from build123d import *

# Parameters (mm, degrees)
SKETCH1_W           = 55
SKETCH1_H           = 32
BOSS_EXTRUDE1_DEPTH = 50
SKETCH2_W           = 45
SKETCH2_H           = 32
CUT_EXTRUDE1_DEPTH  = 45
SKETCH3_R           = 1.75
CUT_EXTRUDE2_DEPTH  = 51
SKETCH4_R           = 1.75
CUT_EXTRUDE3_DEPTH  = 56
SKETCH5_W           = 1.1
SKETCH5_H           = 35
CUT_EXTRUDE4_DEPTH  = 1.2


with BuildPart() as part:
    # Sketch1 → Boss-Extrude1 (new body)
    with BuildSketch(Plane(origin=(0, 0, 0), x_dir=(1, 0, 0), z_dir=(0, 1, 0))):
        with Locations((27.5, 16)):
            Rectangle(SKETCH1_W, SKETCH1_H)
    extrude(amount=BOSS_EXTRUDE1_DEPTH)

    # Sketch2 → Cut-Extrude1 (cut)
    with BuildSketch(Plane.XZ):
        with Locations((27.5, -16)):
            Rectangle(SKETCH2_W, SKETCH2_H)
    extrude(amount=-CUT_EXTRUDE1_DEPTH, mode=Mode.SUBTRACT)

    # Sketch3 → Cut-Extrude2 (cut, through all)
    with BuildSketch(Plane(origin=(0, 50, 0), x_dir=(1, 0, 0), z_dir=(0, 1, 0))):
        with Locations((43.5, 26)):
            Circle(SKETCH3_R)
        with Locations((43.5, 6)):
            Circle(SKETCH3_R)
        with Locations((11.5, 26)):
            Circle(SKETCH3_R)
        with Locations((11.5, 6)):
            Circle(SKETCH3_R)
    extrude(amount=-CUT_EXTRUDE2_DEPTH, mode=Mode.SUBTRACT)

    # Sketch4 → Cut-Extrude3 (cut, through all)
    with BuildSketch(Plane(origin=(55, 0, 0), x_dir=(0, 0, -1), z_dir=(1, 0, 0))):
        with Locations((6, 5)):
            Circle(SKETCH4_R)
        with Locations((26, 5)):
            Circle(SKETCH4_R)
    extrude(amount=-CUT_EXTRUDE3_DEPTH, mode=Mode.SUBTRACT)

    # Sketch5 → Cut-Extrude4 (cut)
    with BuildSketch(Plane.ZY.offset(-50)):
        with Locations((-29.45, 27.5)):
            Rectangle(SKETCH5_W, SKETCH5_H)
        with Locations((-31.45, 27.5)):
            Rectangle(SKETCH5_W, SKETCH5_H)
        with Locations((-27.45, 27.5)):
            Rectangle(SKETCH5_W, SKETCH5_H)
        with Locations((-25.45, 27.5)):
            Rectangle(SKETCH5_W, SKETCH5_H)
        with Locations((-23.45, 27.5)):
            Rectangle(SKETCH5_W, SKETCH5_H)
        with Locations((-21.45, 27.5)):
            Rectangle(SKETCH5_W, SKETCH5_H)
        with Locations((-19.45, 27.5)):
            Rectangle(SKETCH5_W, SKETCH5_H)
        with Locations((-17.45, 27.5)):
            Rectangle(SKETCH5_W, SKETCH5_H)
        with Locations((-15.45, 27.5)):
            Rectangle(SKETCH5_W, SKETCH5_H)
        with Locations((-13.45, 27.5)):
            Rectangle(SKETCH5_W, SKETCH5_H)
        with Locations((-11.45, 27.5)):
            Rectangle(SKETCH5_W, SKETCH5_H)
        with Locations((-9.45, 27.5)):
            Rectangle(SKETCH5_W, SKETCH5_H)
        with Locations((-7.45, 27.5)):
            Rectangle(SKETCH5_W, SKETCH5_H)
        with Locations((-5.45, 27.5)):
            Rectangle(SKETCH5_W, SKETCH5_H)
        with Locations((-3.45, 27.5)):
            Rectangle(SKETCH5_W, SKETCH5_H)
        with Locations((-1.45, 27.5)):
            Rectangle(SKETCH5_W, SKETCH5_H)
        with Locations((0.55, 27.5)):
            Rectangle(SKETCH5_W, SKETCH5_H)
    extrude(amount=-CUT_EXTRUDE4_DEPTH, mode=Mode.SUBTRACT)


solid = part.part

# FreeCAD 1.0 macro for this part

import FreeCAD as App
import Part
import Sketcher

doc = App.newDocument("Part")
body = doc.addObject("PartDesign::Body", "Body")

sketch1 = body.newObject("Sketcher::SketchObject", "Sketch")
sketch1.AttachmentSupport = (doc.getObject("XZ_Plane"), [""])
sketch1.MapMode = "FlatFace"
sketch1.addGeometry([
    Part.LineSegment(App.Vector(0, -32, 0), App.Vector(0, 0, 0)),
    Part.LineSegment(App.Vector(0, 0, 0), App.Vector(55, 0, 0)),
    Part.LineSegment(App.Vector(55, 0, 0), App.Vector(55, -32, 0)),
    Part.LineSegment(App.Vector(55, -32, 0), App.Vector(0, -32, 0)),
], False)
sketch1.addConstraint([
    Sketcher.Constraint("Coincident", 0, 2, 1, 1),
    Sketcher.Constraint("Coincident", 1, 2, 2, 1),
    Sketcher.Constraint("Coincident", 2, 2, 3, 1),
    Sketcher.Constraint("Coincident", 3, 2, 0, 1),
    Sketcher.Constraint("Vertical", 0),
    Sketcher.Constraint("Horizontal", 1),
    Sketcher.Constraint("Vertical", 2),
    Sketcher.Constraint("Horizontal", 3),
    Sketcher.Constraint("Coincident", 0, 2, -1, 1),
    Sketcher.Constraint("DistanceX", 1, 1, 1, 2, 55.0),
    Sketcher.Constraint("DistanceY", 0, 1, 0, 2, 32.0),
])
pad1 = body.newObject("PartDesign::Pad", "Pad")
pad1.Profile = sketch1
pad1.Length = 50
pad1.Reversed = True

sketch2 = body.newObject("Sketcher::SketchObject", "Sketch001")
sketch2.AttachmentSupport = (doc.getObject("XZ_Plane"), [""])
sketch2.MapMode = "FlatFace"
sketch2.addGeometry([
    Part.LineSegment(App.Vector(5, 0, 0), App.Vector(5, -32, 0)),
    Part.LineSegment(App.Vector(5, -32, 0), App.Vector(50, -32, 0)),
    Part.LineSegment(App.Vector(50, -32, 0), App.Vector(50, 0, 0)),
    Part.LineSegment(App.Vector(50, 0, 0), App.Vector(5, 0, 0)),
], False)
sketch2.addConstraint([
    Sketcher.Constraint("Coincident", 0, 2, 1, 1),
    Sketcher.Constraint("Coincident", 1, 2, 2, 1),
    Sketcher.Constraint("Coincident", 2, 2, 3, 1),
    Sketcher.Constraint("Coincident", 3, 2, 0, 1),
    Sketcher.Constraint("Vertical", 0),
    Sketcher.Constraint("Horizontal", 1),
    Sketcher.Constraint("Vertical", 2),
    Sketcher.Constraint("Horizontal", 3),
    Sketcher.Constraint("PointOnObject", 2, 2, -1),
    Sketcher.Constraint("DistanceX", 1, 1, 1, 2, 45.0),
    Sketcher.Constraint("DistanceY", 0, 2, 0, 1, 32.0),
    Sketcher.Constraint("DistanceX", -1, 1, 0, 2, 5.0),
])
pocket1 = body.newObject("PartDesign::Pocket", "Pocket")
pocket1.Profile = sketch2
pocket1.Length = 45

sketch3 = body.newObject("Sketcher::SketchObject", "Sketch002")
sketch3.AttachmentSupport = (doc.getObject("XZ_Plane"), [""])
sketch3.MapMode = "FlatFace"
sketch3.AttachmentOffset = App.Placement(App.Vector(0, 0, -50), App.Rotation())
sketch3.addGeometry([
    Part.Circle(App.Vector(43.5, -26, 0), App.Vector(0, 0, 1), 1.8),
    Part.Circle(App.Vector(43.5, -6, 0), App.Vector(0, 0, 1), 1.8),
    Part.Circle(App.Vector(11.5, -26, 0), App.Vector(0, 0, 1), 1.8),
    Part.Circle(App.Vector(11.5, -6, 0), App.Vector(0, 0, 1), 1.8),
], False)
sketch3.addConstraint([
    Sketcher.Constraint("Equal", 0, 1),
    Sketcher.Constraint("Equal", 1, 2),
    Sketcher.Constraint("Equal", 2, 3),
    Sketcher.Constraint("Horizontal", 0, 3, 2, 3),
    Sketcher.Constraint("Horizontal", 1, 3, 3, 3),
    Sketcher.Constraint("Vertical", 0, 3, 1, 3),
    Sketcher.Constraint("Vertical", 2, 3, 3, 3),
    Sketcher.Constraint("Diameter", 0, 3.5),
    Sketcher.Constraint("DistanceY", 0, 3, -1, 1, 26.0),
    Sketcher.Constraint("DistanceY", 1, 3, -1, 1, 6.0),
    Sketcher.Constraint("DistanceX", 2, 3, 0, 3, 32.0),
    Sketcher.Constraint("DistanceX", -1, 1, 0, 3, 43.5),
])
pocket2 = body.newObject("PartDesign::Pocket", "Pocket001")
pocket2.Profile = sketch3
pocket2.Type = "ThroughAll"
pocket2.Reversed = True

sketch4 = body.newObject("Sketcher::SketchObject", "Sketch003")
sketch4.AttachmentSupport = (doc.getObject("YZ_Plane"), [""])
sketch4.MapMode = "FlatFace"
sketch4.AttachmentOffset = App.Placement(App.Vector(0, 0, 55), App.Rotation())
sketch4.addGeometry([
    Part.Circle(App.Vector(5, -6, 0), App.Vector(0, 0, 1), 1.8),
    Part.Circle(App.Vector(5, -26, 0), App.Vector(0, 0, 1), 1.8),
], False)
sketch4.addConstraint([
    Sketcher.Constraint("Equal", 0, 1),
    Sketcher.Constraint("Vertical", 0, 3, 1, 3),
    Sketcher.Constraint("Diameter", 0, 3.5),
    Sketcher.Constraint("DistanceX", -1, 1, 0, 3, 5.0),
    Sketcher.Constraint("DistanceY", 0, 3, -1, 1, 6.0),
    Sketcher.Constraint("DistanceY", 1, 3, -1, 1, 26.0),
])
pocket3 = body.newObject("PartDesign::Pocket", "Pocket002")
pocket3.Profile = sketch4
pocket3.Type = "ThroughAll"

sketch5 = body.newObject("Sketcher::SketchObject", "Sketch004")
sketch5.AttachmentSupport = (doc.getObject("YZ_Plane"), [""])
sketch5.MapMode = "FlatFace"
sketch5.AttachmentOffset = App.Placement(App.Vector(0, 0, 50), App.Rotation())
sketch5.addGeometry([
    Part.LineSegment(App.Vector(45, -30, 0), App.Vector(10, -30, 0)),
    Part.LineSegment(App.Vector(10, -30, 0), App.Vector(10, -28.9, 0)),
    Part.LineSegment(App.Vector(10, -28.9, 0), App.Vector(45, -28.9, 0)),
    Part.LineSegment(App.Vector(45, -28.9, 0), App.Vector(45, -30, 0)),
    Part.LineSegment(App.Vector(45, -32, 0), App.Vector(10, -32, 0)),
    Part.LineSegment(App.Vector(10, -32, 0), App.Vector(10, -30.9, 0)),
    Part.LineSegment(App.Vector(10, -30.9, 0), App.Vector(45, -30.9, 0)),
    Part.LineSegment(App.Vector(45, -30.9, 0), App.Vector(45, -32, 0)),
    Part.LineSegment(App.Vector(45, -28, 0), App.Vector(10, -28, 0)),
    Part.LineSegment(App.Vector(10, -28, 0), App.Vector(10, -26.9, 0)),
    Part.LineSegment(App.Vector(10, -26.9, 0), App.Vector(45, -26.9, 0)),
    Part.LineSegment(App.Vector(45, -26.9, 0), App.Vector(45, -28, 0)),
    Part.LineSegment(App.Vector(45, -26, 0), App.Vector(10, -26, 0)),
    Part.LineSegment(App.Vector(10, -26, 0), App.Vector(10, -24.9, 0)),
    Part.LineSegment(App.Vector(10, -24.9, 0), App.Vector(45, -24.9, 0)),
    Part.LineSegment(App.Vector(45, -24.9, 0), App.Vector(45, -26, 0)),
    Part.LineSegment(App.Vector(45, -24, 0), App.Vector(10, -24, 0)),
    Part.LineSegment(App.Vector(10, -24, 0), App.Vector(10, -22.9, 0)),
    Part.LineSegment(App.Vector(10, -22.9, 0), App.Vector(45, -22.9, 0)),
    Part.LineSegment(App.Vector(45, -22.9, 0), App.Vector(45, -24, 0)),
    Part.LineSegment(App.Vector(45, -22, 0), App.Vector(10, -22, 0)),
    Part.LineSegment(App.Vector(10, -22, 0), App.Vector(10, -20.9, 0)),
    Part.LineSegment(App.Vector(10, -20.9, 0), App.Vector(45, -20.9, 0)),
    Part.LineSegment(App.Vector(45, -20.9, 0), App.Vector(45, -22, 0)),
    Part.LineSegment(App.Vector(45, -20, 0), App.Vector(10, -20, 0)),
    Part.LineSegment(App.Vector(10, -20, 0), App.Vector(10, -18.9, 0)),
    Part.LineSegment(App.Vector(10, -18.9, 0), App.Vector(45, -18.9, 0)),
    Part.LineSegment(App.Vector(45, -18.9, 0), App.Vector(45, -20, 0)),
    Part.LineSegment(App.Vector(45, -18, 0), App.Vector(10, -18, 0)),
    Part.LineSegment(App.Vector(10, -18, 0), App.Vector(10, -16.9, 0)),
    Part.LineSegment(App.Vector(10, -16.9, 0), App.Vector(45, -16.9, 0)),
    Part.LineSegment(App.Vector(45, -16.9, 0), App.Vector(45, -18, 0)),
    Part.LineSegment(App.Vector(45, -16, 0), App.Vector(10, -16, 0)),
    Part.LineSegment(App.Vector(10, -16, 0), App.Vector(10, -14.9, 0)),
    Part.LineSegment(App.Vector(10, -14.9, 0), App.Vector(45, -14.9, 0)),
    Part.LineSegment(App.Vector(45, -14.9, 0), App.Vector(45, -16, 0)),
    Part.LineSegment(App.Vector(45, -14, 0), App.Vector(10, -14, 0)),
    Part.LineSegment(App.Vector(10, -14, 0), App.Vector(10, -12.9, 0)),
    Part.LineSegment(App.Vector(10, -12.9, 0), App.Vector(45, -12.9, 0)),
    Part.LineSegment(App.Vector(45, -12.9, 0), App.Vector(45, -14, 0)),
    Part.LineSegment(App.Vector(45, -12, 0), App.Vector(10, -12, 0)),
    Part.LineSegment(App.Vector(10, -12, 0), App.Vector(10, -10.9, 0)),
    Part.LineSegment(App.Vector(10, -10.9, 0), App.Vector(45, -10.9, 0)),
    Part.LineSegment(App.Vector(45, -10.9, 0), App.Vector(45, -12, 0)),
    Part.LineSegment(App.Vector(45, -10, 0), App.Vector(10, -10, 0)),
    Part.LineSegment(App.Vector(10, -10, 0), App.Vector(10, -8.9, 0)),
    Part.LineSegment(App.Vector(10, -8.9, 0), App.Vector(45, -8.9, 0)),
    Part.LineSegment(App.Vector(45, -8.9, 0), App.Vector(45, -10, 0)),
    Part.LineSegment(App.Vector(45, -8, 0), App.Vector(10, -8, 0)),
    Part.LineSegment(App.Vector(10, -8, 0), App.Vector(10, -6.9, 0)),
    Part.LineSegment(App.Vector(10, -6.9, 0), App.Vector(45, -6.9, 0)),
    Part.LineSegment(App.Vector(45, -6.9, 0), App.Vector(45, -8, 0)),
    Part.LineSegment(App.Vector(45, -6, 0), App.Vector(10, -6, 0)),
    Part.LineSegment(App.Vector(10, -6, 0), App.Vector(10, -4.9, 0)),
    Part.LineSegment(App.Vector(10, -4.9, 0), App.Vector(45, -4.9, 0)),
    Part.LineSegment(App.Vector(45, -4.9, 0), App.Vector(45, -6, 0)),
    Part.LineSegment(App.Vector(45, -4, 0), App.Vector(10, -4, 0)),
    Part.LineSegment(App.Vector(10, -4, 0), App.Vector(10, -2.9, 0)),
    Part.LineSegment(App.Vector(10, -2.9, 0), App.Vector(45, -2.9, 0)),
    Part.LineSegment(App.Vector(45, -2.9, 0), App.Vector(45, -4, 0)),
    Part.LineSegment(App.Vector(45, -2, 0), App.Vector(10, -2, 0)),
    Part.LineSegment(App.Vector(10, -2, 0), App.Vector(10, -0.9, 0)),
    Part.LineSegment(App.Vector(10, -0.9, 0), App.Vector(45, -0.9, 0)),
    Part.LineSegment(App.Vector(45, -0.9, 0), App.Vector(45, -2, 0)),
    Part.LineSegment(App.Vector(45, 0, 0), App.Vector(10, 0, 0)),
    Part.LineSegment(App.Vector(10, 0, 0), App.Vector(10, 1.1, 0)),
    Part.LineSegment(App.Vector(10, 1.1, 0), App.Vector(45, 1.1, 0)),
    Part.LineSegment(App.Vector(45, 1.1, 0), App.Vector(45, 0, 0)),
], False)
sketch5.addConstraint([
    Sketcher.Constraint("Coincident", 0, 2, 1, 1),
    Sketcher.Constraint("Coincident", 1, 2, 2, 1),
    Sketcher.Constraint("Coincident", 2, 2, 3, 1),
    Sketcher.Constraint("Coincident", 3, 2, 0, 1),
    Sketcher.Constraint("Coincident", 4, 2, 5, 1),
    Sketcher.Constraint("Coincident", 5, 2, 6, 1),
    Sketcher.Constraint("Coincident", 6, 2, 7, 1),
    Sketcher.Constraint("Coincident", 7, 2, 4, 1),
    Sketcher.Constraint("Coincident", 8, 2, 9, 1),
    Sketcher.Constraint("Coincident", 9, 2, 10, 1),
    Sketcher.Constraint("Coincident", 10, 2, 11, 1),
    Sketcher.Constraint("Coincident", 11, 2, 8, 1),
    Sketcher.Constraint("Coincident", 12, 2, 13, 1),
    Sketcher.Constraint("Coincident", 13, 2, 14, 1),
    Sketcher.Constraint("Coincident", 14, 2, 15, 1),
    Sketcher.Constraint("Coincident", 15, 2, 12, 1),
    Sketcher.Constraint("Coincident", 16, 2, 17, 1),
    Sketcher.Constraint("Coincident", 17, 2, 18, 1),
    Sketcher.Constraint("Coincident", 18, 2, 19, 1),
    Sketcher.Constraint("Coincident", 19, 2, 16, 1),
    Sketcher.Constraint("Coincident", 20, 2, 21, 1),
    Sketcher.Constraint("Coincident", 21, 2, 22, 1),
    Sketcher.Constraint("Coincident", 22, 2, 23, 1),
    Sketcher.Constraint("Coincident", 23, 2, 20, 1),
    Sketcher.Constraint("Coincident", 24, 2, 25, 1),
    Sketcher.Constraint("Coincident", 25, 2, 26, 1),
    Sketcher.Constraint("Coincident", 26, 2, 27, 1),
    Sketcher.Constraint("Coincident", 27, 2, 24, 1),
    Sketcher.Constraint("Coincident", 28, 2, 29, 1),
    Sketcher.Constraint("Coincident", 29, 2, 30, 1),
    Sketcher.Constraint("Coincident", 30, 2, 31, 1),
    Sketcher.Constraint("Coincident", 31, 2, 28, 1),
    Sketcher.Constraint("Coincident", 32, 2, 33, 1),
    Sketcher.Constraint("Coincident", 33, 2, 34, 1),
    Sketcher.Constraint("Coincident", 34, 2, 35, 1),
    Sketcher.Constraint("Coincident", 35, 2, 32, 1),
    Sketcher.Constraint("Coincident", 36, 2, 37, 1),
    Sketcher.Constraint("Coincident", 37, 2, 38, 1),
    Sketcher.Constraint("Coincident", 38, 2, 39, 1),
    Sketcher.Constraint("Coincident", 39, 2, 36, 1),
    Sketcher.Constraint("Coincident", 40, 2, 41, 1),
    Sketcher.Constraint("Coincident", 41, 2, 42, 1),
    Sketcher.Constraint("Coincident", 42, 2, 43, 1),
    Sketcher.Constraint("Coincident", 43, 2, 40, 1),
    Sketcher.Constraint("Coincident", 44, 2, 45, 1),
    Sketcher.Constraint("Coincident", 45, 2, 46, 1),
    Sketcher.Constraint("Coincident", 46, 2, 47, 1),
    Sketcher.Constraint("Coincident", 47, 2, 44, 1),
    Sketcher.Constraint("Coincident", 48, 2, 49, 1),
    Sketcher.Constraint("Coincident", 49, 2, 50, 1),
    Sketcher.Constraint("Coincident", 50, 2, 51, 1),
    Sketcher.Constraint("Coincident", 51, 2, 48, 1),
    Sketcher.Constraint("Coincident", 52, 2, 53, 1),
    Sketcher.Constraint("Coincident", 53, 2, 54, 1),
    Sketcher.Constraint("Coincident", 54, 2, 55, 1),
    Sketcher.Constraint("Coincident", 55, 2, 52, 1),
    Sketcher.Constraint("Coincident", 56, 2, 57, 1),
    Sketcher.Constraint("Coincident", 57, 2, 58, 1),
    Sketcher.Constraint("Coincident", 58, 2, 59, 1),
    Sketcher.Constraint("Coincident", 59, 2, 56, 1),
    Sketcher.Constraint("Coincident", 60, 2, 61, 1),
    Sketcher.Constraint("Coincident", 61, 2, 62, 1),
    Sketcher.Constraint("Coincident", 62, 2, 63, 1),
    Sketcher.Constraint("Coincident", 63, 2, 60, 1),
    Sketcher.Constraint("Coincident", 64, 2, 65, 1),
    Sketcher.Constraint("Coincident", 65, 2, 66, 1),
    Sketcher.Constraint("Coincident", 66, 2, 67, 1),
    Sketcher.Constraint("Coincident", 67, 2, 64, 1),
    Sketcher.Constraint("Horizontal", 0),
    Sketcher.Constraint("Vertical", 1),
    Sketcher.Constraint("Horizontal", 2),
    Sketcher.Constraint("Vertical", 3),
    Sketcher.Constraint("Horizontal", 4),
    Sketcher.Constraint("Vertical", 5),
    Sketcher.Constraint("Horizontal", 6),
    Sketcher.Constraint("Vertical", 7),
    Sketcher.Constraint("Horizontal", 8),
    Sketcher.Constraint("Vertical", 9),
    Sketcher.Constraint("Horizontal", 10),
    Sketcher.Constraint("Vertical", 11),
    Sketcher.Constraint("Horizontal", 12),
    Sketcher.Constraint("Vertical", 13),
    Sketcher.Constraint("Horizontal", 14),
    Sketcher.Constraint("Vertical", 15),
    Sketcher.Constraint("Horizontal", 16),
    Sketcher.Constraint("Vertical", 17),
    Sketcher.Constraint("Horizontal", 18),
    Sketcher.Constraint("Vertical", 19),
    Sketcher.Constraint("Horizontal", 20),
    Sketcher.Constraint("Vertical", 21),
    Sketcher.Constraint("Horizontal", 22),
    Sketcher.Constraint("Vertical", 23),
    Sketcher.Constraint("Horizontal", 24),
    Sketcher.Constraint("Vertical", 25),
    Sketcher.Constraint("Horizontal", 26),
    Sketcher.Constraint("Vertical", 27),
    Sketcher.Constraint("Horizontal", 28),
    Sketcher.Constraint("Vertical", 29),
    Sketcher.Constraint("Horizontal", 30),
    Sketcher.Constraint("Vertical", 31),
    Sketcher.Constraint("Horizontal", 32),
    Sketcher.Constraint("Vertical", 33),
    Sketcher.Constraint("Horizontal", 34),
    Sketcher.Constraint("Vertical", 35),
    Sketcher.Constraint("Horizontal", 36),
    Sketcher.Constraint("Vertical", 37),
    Sketcher.Constraint("Horizontal", 38),
    Sketcher.Constraint("Vertical", 39),
    Sketcher.Constraint("Horizontal", 40),
    Sketcher.Constraint("Vertical", 41),
    Sketcher.Constraint("Horizontal", 42),
    Sketcher.Constraint("Vertical", 43),
    Sketcher.Constraint("Horizontal", 44),
    Sketcher.Constraint("Vertical", 45),
    Sketcher.Constraint("Horizontal", 46),
    Sketcher.Constraint("Vertical", 47),
    Sketcher.Constraint("Horizontal", 48),
    Sketcher.Constraint("Vertical", 49),
    Sketcher.Constraint("Horizontal", 50),
    Sketcher.Constraint("Vertical", 51),
    Sketcher.Constraint("Horizontal", 52),
    Sketcher.Constraint("Vertical", 53),
    Sketcher.Constraint("Horizontal", 54),
    Sketcher.Constraint("Vertical", 55),
    Sketcher.Constraint("Horizontal", 56),
    Sketcher.Constraint("Vertical", 57),
    Sketcher.Constraint("Horizontal", 58),
    Sketcher.Constraint("Vertical", 59),
    Sketcher.Constraint("Horizontal", 60),
    Sketcher.Constraint("Vertical", 61),
    Sketcher.Constraint("Horizontal", 62),
    Sketcher.Constraint("Vertical", 63),
    Sketcher.Constraint("Horizontal", 64),
    Sketcher.Constraint("Vertical", 65),
    Sketcher.Constraint("Horizontal", 66),
    Sketcher.Constraint("Vertical", 67),
    Sketcher.Constraint("PointOnObject", 64, 2, -1),
    Sketcher.Constraint("Vertical", 1, 2, 4, 2),
    Sketcher.Constraint("Vertical", 3, 2, 6, 2),
    Sketcher.Constraint("Vertical", 5, 2, 8, 2),
    Sketcher.Constraint("Vertical", 7, 2, 10, 2),
    Sketcher.Constraint("Vertical", 9, 2, 12, 2),
    Sketcher.Constraint("Vertical", 11, 2, 14, 2),
    Sketcher.Constraint("Vertical", 13, 2, 16, 2),
    Sketcher.Constraint("Vertical", 15, 2, 18, 2),
    Sketcher.Constraint("Vertical", 17, 2, 20, 2),
    Sketcher.Constraint("Vertical", 19, 2, 22, 2),
    Sketcher.Constraint("Vertical", 21, 2, 24, 2),
    Sketcher.Constraint("Vertical", 23, 2, 26, 2),
    Sketcher.Constraint("Vertical", 25, 2, 28, 2),
    Sketcher.Constraint("Vertical", 27, 2, 30, 2),
    Sketcher.Constraint("Vertical", 29, 2, 32, 2),
    Sketcher.Constraint("Vertical", 31, 2, 34, 2),
    Sketcher.Constraint("Vertical", 33, 2, 36, 2),
    Sketcher.Constraint("Vertical", 35, 2, 38, 2),
    Sketcher.Constraint("Vertical", 37, 2, 40, 2),
    Sketcher.Constraint("Vertical", 39, 2, 42, 2),
    Sketcher.Constraint("Vertical", 41, 2, 44, 2),
    Sketcher.Constraint("Vertical", 43, 2, 46, 2),
    Sketcher.Constraint("Vertical", 45, 2, 48, 2),
    Sketcher.Constraint("Vertical", 47, 2, 50, 2),
    Sketcher.Constraint("Vertical", 49, 2, 52, 2),
    Sketcher.Constraint("Vertical", 51, 2, 54, 2),
    Sketcher.Constraint("Vertical", 53, 2, 56, 2),
    Sketcher.Constraint("Vertical", 55, 2, 58, 2),
    Sketcher.Constraint("Vertical", 57, 2, 60, 2),
    Sketcher.Constraint("Vertical", 59, 2, 62, 2),
    Sketcher.Constraint("Vertical", 61, 2, 64, 2),
    Sketcher.Constraint("Vertical", 63, 2, 66, 2),
    Sketcher.Constraint("Equal", 3, 5),
    Sketcher.Constraint("Equal", 7, 9),
    Sketcher.Constraint("Equal", 11, 13),
    Sketcher.Constraint("Equal", 15, 17),
    Sketcher.Constraint("Equal", 19, 21),
    Sketcher.Constraint("Equal", 23, 25),
    Sketcher.Constraint("Equal", 27, 29),
    Sketcher.Constraint("Equal", 31, 33),
    Sketcher.Constraint("Equal", 35, 37),
    Sketcher.Constraint("Equal", 39, 41),
    Sketcher.Constraint("Equal", 43, 45),
    Sketcher.Constraint("Equal", 47, 49),
    Sketcher.Constraint("Equal", 51, 53),
    Sketcher.Constraint("Equal", 55, 57),
    Sketcher.Constraint("Equal", 59, 61),
    Sketcher.Constraint("Equal", 63, 65),
    Sketcher.Constraint("DistanceX", 0, 2, 0, 1, 35.0),
    Sketcher.Constraint("DistanceY", 1, 1, 1, 2, 1.1),
    Sketcher.Constraint("DistanceX", -1, 1, 0, 2, 10.0),
    Sketcher.Constraint("DistanceY", 0, 2, -1, 1, 30.0),
    Sketcher.Constraint("DistanceY", 4, 2, -1, 1, 32.0),
    Sketcher.Constraint("DistanceY", 8, 2, -1, 1, 28.0),
    Sketcher.Constraint("DistanceY", 12, 2, -1, 1, 26.0),
    Sketcher.Constraint("DistanceY", 16, 2, -1, 1, 24.0),
    Sketcher.Constraint("DistanceY", 20, 2, -1, 1, 22.0),
    Sketcher.Constraint("DistanceY", 24, 2, -1, 1, 20.0),
    Sketcher.Constraint("DistanceY", 28, 2, -1, 1, 18.0),
    Sketcher.Constraint("DistanceY", 32, 2, -1, 1, 16.0),
    Sketcher.Constraint("DistanceY", 36, 2, -1, 1, 14.0),
    Sketcher.Constraint("DistanceY", 40, 2, -1, 1, 12.0),
    Sketcher.Constraint("DistanceY", 44, 2, -1, 1, 10.0),
    Sketcher.Constraint("DistanceY", 48, 2, -1, 1, 8.0),
    Sketcher.Constraint("DistanceY", 52, 2, -1, 1, 6.0),
    Sketcher.Constraint("DistanceY", 56, 2, -1, 1, 4.0),
    Sketcher.Constraint("DistanceY", 60, 2, -1, 1, 2.0),
])
pocket4 = body.newObject("PartDesign::Pocket", "Pocket003")
pocket4.Profile = sketch5
pocket4.Length = 1.2
pocket4.Reversed = True

doc.recompute()
